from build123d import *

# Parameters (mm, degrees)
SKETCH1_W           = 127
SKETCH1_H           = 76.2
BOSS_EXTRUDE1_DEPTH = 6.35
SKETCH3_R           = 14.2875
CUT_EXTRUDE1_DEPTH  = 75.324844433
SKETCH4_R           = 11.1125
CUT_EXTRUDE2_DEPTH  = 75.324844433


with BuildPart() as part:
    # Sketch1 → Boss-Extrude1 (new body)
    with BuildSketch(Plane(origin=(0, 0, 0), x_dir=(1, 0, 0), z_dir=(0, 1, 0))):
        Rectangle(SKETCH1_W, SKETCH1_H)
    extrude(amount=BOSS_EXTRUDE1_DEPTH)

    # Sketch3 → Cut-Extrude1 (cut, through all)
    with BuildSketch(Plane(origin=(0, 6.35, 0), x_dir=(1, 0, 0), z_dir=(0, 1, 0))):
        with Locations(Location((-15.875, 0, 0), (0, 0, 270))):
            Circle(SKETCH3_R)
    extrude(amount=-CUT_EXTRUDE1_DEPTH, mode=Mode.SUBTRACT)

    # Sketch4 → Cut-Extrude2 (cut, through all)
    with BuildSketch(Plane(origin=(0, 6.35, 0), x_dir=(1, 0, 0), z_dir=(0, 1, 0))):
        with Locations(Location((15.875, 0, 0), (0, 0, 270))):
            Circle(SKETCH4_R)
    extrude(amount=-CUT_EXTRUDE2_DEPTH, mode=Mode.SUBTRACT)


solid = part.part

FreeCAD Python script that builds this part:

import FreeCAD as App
import Part
import Sketcher

V = App.Vector
Q = App.Units.Quantity


def add_polygon(sketch, points):
    """Adds a closed chain of lines whose ends are joined by coincident constraints."""
    first, n = sketch.GeometryCount, len(points)
    for a, b in zip(points, points[1:] + points[:1]):
        sketch.addGeometry(Part.LineSegment(App.Vector(*a, 0), App.Vector(*b, 0)), False)
    for i in range(n):
        sketch.addConstraint(Sketcher.Constraint("Coincident", first + i, 2, first + (i + 1) % n, 1))

doc = App.newDocument("Part")
params = doc.addObject("Spreadsheet::Sheet", "Params")
for row, (alias, value) in enumerate([
    ("sketch1_width", "5 in"),
    ("sketch1_height", "3 in"),
    ("pad1_length", "0.25 in"),
    ("sketch2_diameter", "1.125 in"),
    ("sketch3_diameter", "0.875 in"),
], start=1):
    params.set(f"A{row}", alias)
    params.set(f"B{row}", "=" + value)
    params.setAlias(f"B{row}", alias)

body = doc.addObject("PartDesign::Body", "Body")

sketch1 = body.newObject("Sketcher::SketchObject", "Sketch")
sketch1.AttachmentSupport = (doc.getObject("XZ_Plane"), [""])
sketch1.MapMode = "FlatFace"
add_polygon(sketch1, [(-64, -38), (-64, 38), (64, 38), (64, -38)])
sketch1.addConstraint([
    Sketcher.Constraint("Vertical", 0),
    Sketcher.Constraint("Horizontal", 1),
    Sketcher.Constraint("Vertical", 2),
    Sketcher.Constraint("Horizontal", 3),
    Sketcher.Constraint("Symmetric", 0, 2, 2, 2, -1, 1),
    Sketcher.Constraint("DistanceX", 1, 1, 1, 2, Q("5 in")),
    Sketcher.Constraint("DistanceY", 0, 1, 0, 2, Q("3 in")),
])
sketch1.setExpression("Constraints[9]", "Params.sketch1_width")
sketch1.setExpression("Constraints[10]", "Params.sketch1_height")
pad1 = body.newObject("PartDesign::Pad", "Pad")
pad1.Profile = sketch1
pad1.setExpression("Length", "Params.pad1_length")
pad1.Reversed = True

sketch2 = body.newObject("Sketcher::SketchObject", "Sketch001")
sketch2.AttachmentSupport = (doc.getObject("XZ_Plane"), [""])
sketch2.MapMode = "FlatFace"
sketch2.AttachmentOffset = App.Placement(V(0, 0, -0.25 * 25.4), App.Rotation())
sketch2.addGeometry(Part.Circle(V(-16, 0, 0), V(0, 0, 1), 14), False)
sketch2.addConstraint([
    Sketcher.Constraint("PointOnObject", 0, 3, -1),
    Sketcher.Constraint("Diameter", 0, Q("1.125 in")),
    Sketcher.Constraint("DistanceX", 0, 3, -1, 1, Q("0.625 in")),
])
sketch2.setExpression("Constraints[1]", "Params.sketch2_diameter")
pocket1 = body.newObject("PartDesign::Pocket", "Pocket")
pocket1.Profile = sketch2
pocket1.Type = "ThroughAll"
pocket1.Reversed = True

sketch3 = body.newObject("Sketcher::SketchObject", "Sketch002")
sketch3.AttachmentSupport = (doc.getObject("XZ_Plane"), [""])
sketch3.MapMode = "FlatFace"
sketch3.AttachmentOffset = App.Placement(V(0, 0, -0.25 * 25.4), App.Rotation())
sketch3.addGeometry(Part.Circle(V(16, 0, 0), V(0, 0, 1), 11), False)
sketch3.addConstraint([
    Sketcher.Constraint("PointOnObject", 0, 3, -1),
    Sketcher.Constraint("Diameter", 0, Q("0.875 in")),
    Sketcher.Constraint("DistanceX", -1, 1, 0, 3, Q("0.625 in")),
])
sketch3.setExpression("Constraints[1]", "Params.sketch3_diameter")
pocket2 = body.newObject("PartDesign::Pocket", "Pocket001")
pocket2.Profile = sketch3
pocket2.Type = "ThroughAll"
pocket2.Reversed = True

doc.recompute()
